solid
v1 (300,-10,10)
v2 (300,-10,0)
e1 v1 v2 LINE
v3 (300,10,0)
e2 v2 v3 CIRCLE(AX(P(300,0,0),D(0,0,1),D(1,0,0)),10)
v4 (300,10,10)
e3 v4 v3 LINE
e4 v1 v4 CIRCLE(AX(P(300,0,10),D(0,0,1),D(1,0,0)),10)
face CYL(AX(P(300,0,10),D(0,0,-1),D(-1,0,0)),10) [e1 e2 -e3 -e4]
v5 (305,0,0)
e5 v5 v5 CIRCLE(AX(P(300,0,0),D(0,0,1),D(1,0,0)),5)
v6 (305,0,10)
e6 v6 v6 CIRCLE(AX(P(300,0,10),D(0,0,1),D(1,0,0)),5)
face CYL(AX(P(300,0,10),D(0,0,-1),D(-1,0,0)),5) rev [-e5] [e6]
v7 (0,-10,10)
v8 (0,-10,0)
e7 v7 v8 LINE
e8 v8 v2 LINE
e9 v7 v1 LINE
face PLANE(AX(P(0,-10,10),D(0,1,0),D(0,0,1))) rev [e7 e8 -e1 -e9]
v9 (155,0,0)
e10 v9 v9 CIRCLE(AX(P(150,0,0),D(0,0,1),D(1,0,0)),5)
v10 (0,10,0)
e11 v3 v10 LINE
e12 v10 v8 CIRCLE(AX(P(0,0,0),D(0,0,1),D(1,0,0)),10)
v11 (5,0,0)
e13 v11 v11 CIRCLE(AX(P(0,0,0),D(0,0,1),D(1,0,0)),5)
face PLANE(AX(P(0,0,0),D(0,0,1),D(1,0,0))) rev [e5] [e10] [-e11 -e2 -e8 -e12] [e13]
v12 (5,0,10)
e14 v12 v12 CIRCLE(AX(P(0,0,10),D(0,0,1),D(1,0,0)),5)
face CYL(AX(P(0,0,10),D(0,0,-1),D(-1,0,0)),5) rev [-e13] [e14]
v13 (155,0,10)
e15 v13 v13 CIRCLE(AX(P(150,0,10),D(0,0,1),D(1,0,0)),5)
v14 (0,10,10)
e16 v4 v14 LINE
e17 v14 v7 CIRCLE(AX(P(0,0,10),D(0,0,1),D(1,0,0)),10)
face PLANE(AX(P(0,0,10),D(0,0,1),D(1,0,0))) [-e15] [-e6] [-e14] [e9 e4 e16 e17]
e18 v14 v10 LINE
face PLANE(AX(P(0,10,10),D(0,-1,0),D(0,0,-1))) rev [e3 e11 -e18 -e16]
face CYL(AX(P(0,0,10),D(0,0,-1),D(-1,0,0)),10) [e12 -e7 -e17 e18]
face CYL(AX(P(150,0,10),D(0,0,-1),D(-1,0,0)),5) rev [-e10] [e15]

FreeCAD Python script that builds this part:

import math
import FreeCAD as App
import Part
import Sketcher
from FreeCAD import Vector
Q = App.Units.Quantity

doc = App.newDocument("Part")
body = doc.addObject("PartDesign::Body", "Body")

sketch1 = doc.addObject("Sketcher::SketchObject", "Sketch")
body.addObject(sketch1)
sketch1.AttachmentSupport = (doc.XY_Plane, [""])
sketch1.MapMode = "FlatFace"
sketch1.addGeometry([
    Part.LineSegment(Vector(300, 10, 0), Vector(0, 10, 0)),
    Part.ArcOfCircle(Part.Circle(Vector(0, 0, 0), Vector(0, 0, 1), 10), math.radians(90), math.radians(270)),
    Part.LineSegment(Vector(0, -10, 0), Vector(300, -10, 0)),
    Part.ArcOfCircle(Part.Circle(Vector(300, 0, 0), Vector(0, 0, 1), 10), math.radians(-90), math.radians(90)),
    Part.Circle(Vector(300, 0, 0), Vector(0, 0, 1), 5),
    Part.Circle(Vector(150, 0, 0), Vector(0, 0, 1), 5),
    Part.Circle(Vector(0, 0, 0), Vector(0, 0, 1), 5),
], False)
sketch1.addConstraint([
    Sketcher.Constraint("Tangent", 0, 2, 1, 1),
    Sketcher.Constraint("Tangent", 1, 2, 2, 1),
    Sketcher.Constraint("Tangent", 2, 2, 3, 1),
    Sketcher.Constraint("Tangent", 3, 2, 0, 1),
    Sketcher.Constraint("Horizontal", 0),
    Sketcher.Constraint("Horizontal", 2),
    Sketcher.Constraint("Coincident", 1, 3, -1, 1),
    Sketcher.Constraint("Coincident", 6, 3, -1, 1),
    Sketcher.Constraint("Coincident", 4, 3, 3, 3),
    Sketcher.Constraint("Equal", 4, 5),
    Sketcher.Constraint("Equal", 5, 6),
    Sketcher.Constraint("PointOnObject", 5, 3, -1),
    Sketcher.Constraint("Diameter", 4, Q("10 mm")),
    Sketcher.Constraint("Radius", 1, Q("10 mm")),
    Sketcher.Constraint("DistanceX", 0, 2, 0, 1, Q("300 mm")),
    Sketcher.Constraint("DistanceX", -1, 1, 5, 3, Q("150 mm")),
])
pad1 = doc.addObject("PartDesign::Pad", "Pad")
body.addObject(pad1)
pad1.Profile = sketch1
pad1.Length = 10

doc.recompute()
